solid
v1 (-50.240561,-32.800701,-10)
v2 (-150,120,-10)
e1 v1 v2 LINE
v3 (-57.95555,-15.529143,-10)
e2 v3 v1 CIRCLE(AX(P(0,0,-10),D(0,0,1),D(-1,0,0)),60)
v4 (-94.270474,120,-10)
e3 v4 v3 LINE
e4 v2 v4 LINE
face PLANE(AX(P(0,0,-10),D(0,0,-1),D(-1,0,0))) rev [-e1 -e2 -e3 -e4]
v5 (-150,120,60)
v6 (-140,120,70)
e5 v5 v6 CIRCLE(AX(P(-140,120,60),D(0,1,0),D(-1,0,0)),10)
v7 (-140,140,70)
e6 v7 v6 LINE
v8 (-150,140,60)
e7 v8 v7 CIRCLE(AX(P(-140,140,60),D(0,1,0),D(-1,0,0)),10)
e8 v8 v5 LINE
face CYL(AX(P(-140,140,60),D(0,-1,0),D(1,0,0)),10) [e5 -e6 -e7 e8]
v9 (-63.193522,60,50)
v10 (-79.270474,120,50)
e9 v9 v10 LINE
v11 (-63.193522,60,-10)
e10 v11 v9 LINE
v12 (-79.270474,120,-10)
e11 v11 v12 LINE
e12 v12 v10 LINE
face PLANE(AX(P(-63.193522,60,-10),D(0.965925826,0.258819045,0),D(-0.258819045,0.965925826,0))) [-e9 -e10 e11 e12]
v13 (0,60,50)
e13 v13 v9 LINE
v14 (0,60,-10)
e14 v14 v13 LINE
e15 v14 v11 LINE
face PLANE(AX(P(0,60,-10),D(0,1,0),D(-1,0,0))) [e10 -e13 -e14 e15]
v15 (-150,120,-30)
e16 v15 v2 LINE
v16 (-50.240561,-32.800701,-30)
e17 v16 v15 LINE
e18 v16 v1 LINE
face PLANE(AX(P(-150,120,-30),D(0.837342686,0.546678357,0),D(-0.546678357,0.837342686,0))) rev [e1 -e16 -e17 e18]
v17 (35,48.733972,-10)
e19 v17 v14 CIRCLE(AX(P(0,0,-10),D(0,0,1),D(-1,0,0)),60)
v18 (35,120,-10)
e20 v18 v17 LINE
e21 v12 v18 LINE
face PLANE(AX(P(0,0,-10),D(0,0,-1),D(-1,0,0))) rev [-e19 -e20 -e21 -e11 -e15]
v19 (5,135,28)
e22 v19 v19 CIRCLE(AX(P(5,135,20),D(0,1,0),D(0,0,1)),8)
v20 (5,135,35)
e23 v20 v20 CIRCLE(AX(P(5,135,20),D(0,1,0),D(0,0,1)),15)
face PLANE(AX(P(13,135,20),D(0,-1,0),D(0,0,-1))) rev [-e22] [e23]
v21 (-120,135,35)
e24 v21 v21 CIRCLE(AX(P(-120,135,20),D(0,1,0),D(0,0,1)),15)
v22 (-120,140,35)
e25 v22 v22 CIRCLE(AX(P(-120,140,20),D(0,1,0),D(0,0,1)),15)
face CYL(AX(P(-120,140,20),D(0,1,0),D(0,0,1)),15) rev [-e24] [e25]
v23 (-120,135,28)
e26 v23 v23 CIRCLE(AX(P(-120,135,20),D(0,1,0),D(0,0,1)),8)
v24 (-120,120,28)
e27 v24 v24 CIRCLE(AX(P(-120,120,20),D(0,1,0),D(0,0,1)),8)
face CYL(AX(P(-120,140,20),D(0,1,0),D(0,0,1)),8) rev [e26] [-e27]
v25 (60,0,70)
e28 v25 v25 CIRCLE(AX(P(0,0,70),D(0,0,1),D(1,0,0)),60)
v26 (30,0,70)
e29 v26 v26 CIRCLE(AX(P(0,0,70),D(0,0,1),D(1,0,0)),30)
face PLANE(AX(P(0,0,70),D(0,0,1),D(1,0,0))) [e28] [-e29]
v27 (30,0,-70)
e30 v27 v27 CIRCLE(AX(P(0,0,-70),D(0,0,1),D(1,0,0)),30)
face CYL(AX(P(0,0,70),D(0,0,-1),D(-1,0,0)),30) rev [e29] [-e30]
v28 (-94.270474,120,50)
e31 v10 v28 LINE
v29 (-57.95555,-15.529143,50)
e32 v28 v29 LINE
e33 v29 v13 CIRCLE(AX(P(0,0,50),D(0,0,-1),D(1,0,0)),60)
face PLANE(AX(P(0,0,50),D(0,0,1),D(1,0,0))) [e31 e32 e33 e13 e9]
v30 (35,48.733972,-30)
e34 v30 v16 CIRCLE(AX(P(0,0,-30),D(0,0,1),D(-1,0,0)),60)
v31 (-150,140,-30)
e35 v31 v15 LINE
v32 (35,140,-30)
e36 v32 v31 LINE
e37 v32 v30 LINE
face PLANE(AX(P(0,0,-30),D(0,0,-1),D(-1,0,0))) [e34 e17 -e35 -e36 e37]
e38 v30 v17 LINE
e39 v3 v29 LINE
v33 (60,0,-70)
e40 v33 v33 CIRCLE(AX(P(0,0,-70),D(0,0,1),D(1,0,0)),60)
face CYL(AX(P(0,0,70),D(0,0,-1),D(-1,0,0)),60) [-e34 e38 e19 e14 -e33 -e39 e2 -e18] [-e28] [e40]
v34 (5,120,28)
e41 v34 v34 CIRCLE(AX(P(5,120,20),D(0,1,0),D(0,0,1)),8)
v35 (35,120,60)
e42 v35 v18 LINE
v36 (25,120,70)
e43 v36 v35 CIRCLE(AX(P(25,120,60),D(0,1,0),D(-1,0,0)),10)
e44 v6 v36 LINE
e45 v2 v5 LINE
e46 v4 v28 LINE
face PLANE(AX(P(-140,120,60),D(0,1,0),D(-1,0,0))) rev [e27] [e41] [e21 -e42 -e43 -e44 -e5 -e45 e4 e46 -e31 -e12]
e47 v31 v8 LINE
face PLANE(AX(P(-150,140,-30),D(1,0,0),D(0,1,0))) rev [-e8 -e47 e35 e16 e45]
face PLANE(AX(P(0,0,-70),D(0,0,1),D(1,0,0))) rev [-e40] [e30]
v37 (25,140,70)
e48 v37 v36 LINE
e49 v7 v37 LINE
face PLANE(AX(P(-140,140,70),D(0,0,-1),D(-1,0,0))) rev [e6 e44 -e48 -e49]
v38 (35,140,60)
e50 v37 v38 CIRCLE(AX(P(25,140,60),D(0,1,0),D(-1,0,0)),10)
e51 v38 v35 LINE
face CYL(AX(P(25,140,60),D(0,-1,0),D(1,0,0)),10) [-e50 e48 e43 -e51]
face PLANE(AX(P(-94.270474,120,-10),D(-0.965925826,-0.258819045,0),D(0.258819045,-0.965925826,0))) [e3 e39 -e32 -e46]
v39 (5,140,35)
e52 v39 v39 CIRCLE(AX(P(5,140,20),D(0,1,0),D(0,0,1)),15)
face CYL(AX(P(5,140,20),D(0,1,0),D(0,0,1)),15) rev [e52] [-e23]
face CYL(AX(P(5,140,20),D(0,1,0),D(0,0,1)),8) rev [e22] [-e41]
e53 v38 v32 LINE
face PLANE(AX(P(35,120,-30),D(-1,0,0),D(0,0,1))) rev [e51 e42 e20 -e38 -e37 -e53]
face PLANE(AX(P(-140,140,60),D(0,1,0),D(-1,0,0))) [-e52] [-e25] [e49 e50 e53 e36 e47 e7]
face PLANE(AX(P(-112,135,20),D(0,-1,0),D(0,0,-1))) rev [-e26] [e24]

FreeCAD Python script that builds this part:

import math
import FreeCAD as App
import Part
import Sketcher

V = App.Vector
Q = App.Units.Quantity

doc = App.newDocument("Part")
body = doc.addObject("PartDesign::Body", "Body")

# Sketch on XY plane
sketch1 = body.newObject("Sketcher::SketchObject", "Sketch")
sketch1.AttachmentSupport = (doc.getObject("XY_Plane"), [""])
sketch1.MapMode = "FlatFace"
sketch1.addGeometry([
    Part.Circle(V(0, 0, 0), V(0, 0, 1), 60),
    Part.Circle(V(0, 0, 0), V(0, 0, 1), 30),
], False)
sketch1.addConstraint([
    Sketcher.Constraint("Coincident", 0, 3, -1, 1),
    Sketcher.Constraint("Coincident", 1, 3, -1, 1),
    Sketcher.Constraint("Diameter", 0, 120.0),
    Sketcher.Constraint("Diameter", 1, 60.0),
])
pad1 = body.newObject("PartDesign::Pad", "Pad")
pad1.Profile = sketch1
pad1.Length = 140
pad1.Midplane = True

# Sketch on XY plane
sketch2 = body.newObject("Sketcher::SketchObject", "Sketch001")
sketch2.AttachmentSupport = (doc.getObject("XY_Plane"), [""])
sketch2.MapMode = "FlatFace"
sketch2.AttachmentOffset = App.Placement(V(0, 0, 50), App.Rotation())
sketch2.addGeometry([
    Part.LineSegment(V(-79, 120, 0), V(-94, 120, 0)),  # 0
    Part.LineSegment(V(-94, 120, 0), V(-58, -16, 0)),  # 1
    Part.ArcOfCircle(Part.Circle(V(0, 0, 0), V(0, 0, 1), 60), math.radians(90), math.radians(195)),  # 2
    Part.LineSegment(V(0, 60, 0), V(-63, 60, 0)),  # 3
    Part.LineSegment(V(-63, 60, 0), V(-79, 120, 0)),  # 4
], False)
sketch2.addConstraint([
    Sketcher.Constraint("Coincident", 0, 2, 1, 1),
    Sketcher.Constraint("Tangent", 1, 2, 2, 2),
    Sketcher.Constraint("Tangent", 2, 1, 3, 1),
    Sketcher.Constraint("Coincident", 3, 2, 4, 1),
    Sketcher.Constraint("Coincident", 4, 2, 0, 1),
    Sketcher.Constraint("Horizontal", 0),
    Sketcher.Constraint("Horizontal", 3),
    Sketcher.Constraint("Coincident", 2, 3, -1, 1),
    Sketcher.Constraint("Parallel", 1, 4),
    Sketcher.Constraint("Radius", 2, 60.0),
    Sketcher.Constraint("DistanceX", 0, 2, 0, 1, 15.0),
    Sketcher.Constraint("Angle", 1, Q("-75 deg")),
    Sketcher.Constraint("DistanceY", -1, 1, 0, 2, 120.0),
])
pad2 = body.newObject("PartDesign::Pad", "Pad001")
pad2.Profile = sketch2
pad2.Length = 60
pad2.Reversed = True

# Sketch on XY plane
sketch3 = body.newObject("Sketcher::SketchObject", "Sketch002")
sketch3.AttachmentSupport = (doc.getObject("XY_Plane"), [""])
sketch3.MapMode = "FlatFace"
sketch3.AttachmentOffset = App.Placement(V(0, 0, -10), App.Rotation())
sketch3.addGeometry([
    Part.LineSegment(V(-150, 120, 0), V(35, 120, 0)),
    Part.LineSegment(V(35, 120, 0), V(35, 49, 0)),
    Part.ArcOfCircle(Part.Circle(V(0, 0, 0), V(0, 0, 1), 60), math.radians(54), math.radians(213)),
    Part.LineSegment(V(-50, -33, 0), V(-150, 120, 0)),
], False)
sketch3.addConstraint([
    Sketcher.Constraint("Coincident", 0, 2, 1, 1),
    Sketcher.Constraint("Coincident", 1, 2, 2, 1),
    Sketcher.Constraint("Tangent", 2, 2, 3, 1),
    Sketcher.Constraint("Coincident", 3, 2, 0, 1),
    Sketcher.Constraint("Horizontal", 0),
    Sketcher.Constraint("Vertical", 1),
    Sketcher.Constraint("Coincident", 2, 3, -1, 1),
    Sketcher.Constraint("Radius", 2, 60.0),
    Sketcher.Constraint("DistanceX", 0, 1, 0, 2, 185.0),
    Sketcher.Constraint("DistanceX", -1, 1, 0, 2, 35.0),
    Sketcher.Constraint("DistanceY", -1, 1, 0, 2, 120.0),
])
pad3 = body.newObject("PartDesign::Pad", "Pad002")
pad3.Profile = sketch3
pad3.Length = 20
pad3.Reversed = True

# Sketch on XZ plane
sketch4 = body.newObject("Sketcher::SketchObject", "Sketch003")
sketch4.AttachmentSupport = (doc.getObject("XZ_Plane"), [""])
sketch4.MapMode = "FlatFace"
sketch4.AttachmentOffset = App.Placement(V(0, 0, -120), App.Rotation())
sketch4.addGeometry([
    Part.LineSegment(V(-150, -30, 0), V(-150, 60, 0)),  # 0
    Part.ArcOfCircle(Part.Circle(V(-140, 60, 0), V(0, 0, 1), 10), math.radians(90), math.radians(180)),  # 1
    Part.LineSegment(V(-140, 70, 0), V(25, 70, 0)),  # 2
    Part.ArcOfCircle(Part.Circle(V(25, 60, 0), V(0, 0, 1), 10), math.radians(0), math.radians(90)),  # 3
    Part.LineSegment(V(35, 60, 0), V(35, -30, 0)),  # 4
    Part.LineSegment(V(35, -30, 0), V(-150, -30, 0)),  # 5
], False)
sketch4.addConstraint([
    Sketcher.Constraint("Tangent", 0, 2, 1, 2),
    Sketcher.Constraint("Tangent", 1, 1, 2, 1),
    Sketcher.Constraint("Tangent", 2, 2, 3, 2),
    Sketcher.Constraint("Tangent", 3, 1, 4, 1),
    Sketcher.Constraint("Coincident", 4, 2, 5, 1),
    Sketcher.Constraint("Coincident", 5, 2, 0, 1),
    Sketcher.Constraint("Vertical", 0),
    Sketcher.Constraint("Horizontal", 2),
    Sketcher.Constraint("Vertical", 4),
    Sketcher.Constraint("Horizontal", 5),
    Sketcher.Constraint("Equal", 1, 3),
    Sketcher.Constraint("Radius", 1, 10.0),
    Sketcher.Constraint("DistanceX", 2, 1, 2, 2, 165.0),
    Sketcher.Constraint("DistanceY", 0, 1, 0, 2, 90.0),
    Sketcher.Constraint("DistanceX", 1, 3, -1, 1, 140.0),
    Sketcher.Constraint("DistanceY", -1, 1, 1, 3, 60.0),
])
pad4 = body.newObject("PartDesign::Pad", "Pad003")
pad4.Profile = sketch4
pad4.Length = 20
pad4.Reversed = True

# Sketch on XZ plane
sketch5 = body.newObject("Sketcher::SketchObject", "Sketch004")
sketch5.AttachmentSupport = (doc.getObject("XZ_Plane"), [""])
sketch5.MapMode = "FlatFace"
sketch5.AttachmentOffset = App.Placement(V(0, 0, -140), App.Rotation())
sketch5.addGeometry([
    Part.Circle(V(-120, 20, 0), V(0, 0, 1), 8),
    Part.Circle(V(5, 20, 0), V(0, 0, 1), 8),
], False)
sketch5.addConstraint([
    Sketcher.Constraint("Equal", 0, 1),
    Sketcher.Constraint("Horizontal", 0, 3, 1, 3),
    Sketcher.Constraint("Diameter", 0, 16.0),
    Sketcher.Constraint("DistanceX", 0, 3, -1, 1, 120.0),
    Sketcher.Constraint("DistanceY", -1, 1, 0, 3, 20.0),
    Sketcher.Constraint("DistanceX", -1, 1, 1, 3, 5.0),
])
doc.recompute()
hole = body.newObject("PartDesign::Hole", "Hole")
hole.Profile = sketch5
hole.ThreadType = "None"
hole.Diameter = 16
hole.DepthType = "Dimension"
hole.Depth = 20
hole.DrillPoint = "Angled"
hole.DrillPointAngle = 118
hole.HoleCutType = "Counterbore"
hole.HoleCutDiameter = 30
hole.HoleCutDepth = 5
hole.Reversed = True

doc.recompute()
